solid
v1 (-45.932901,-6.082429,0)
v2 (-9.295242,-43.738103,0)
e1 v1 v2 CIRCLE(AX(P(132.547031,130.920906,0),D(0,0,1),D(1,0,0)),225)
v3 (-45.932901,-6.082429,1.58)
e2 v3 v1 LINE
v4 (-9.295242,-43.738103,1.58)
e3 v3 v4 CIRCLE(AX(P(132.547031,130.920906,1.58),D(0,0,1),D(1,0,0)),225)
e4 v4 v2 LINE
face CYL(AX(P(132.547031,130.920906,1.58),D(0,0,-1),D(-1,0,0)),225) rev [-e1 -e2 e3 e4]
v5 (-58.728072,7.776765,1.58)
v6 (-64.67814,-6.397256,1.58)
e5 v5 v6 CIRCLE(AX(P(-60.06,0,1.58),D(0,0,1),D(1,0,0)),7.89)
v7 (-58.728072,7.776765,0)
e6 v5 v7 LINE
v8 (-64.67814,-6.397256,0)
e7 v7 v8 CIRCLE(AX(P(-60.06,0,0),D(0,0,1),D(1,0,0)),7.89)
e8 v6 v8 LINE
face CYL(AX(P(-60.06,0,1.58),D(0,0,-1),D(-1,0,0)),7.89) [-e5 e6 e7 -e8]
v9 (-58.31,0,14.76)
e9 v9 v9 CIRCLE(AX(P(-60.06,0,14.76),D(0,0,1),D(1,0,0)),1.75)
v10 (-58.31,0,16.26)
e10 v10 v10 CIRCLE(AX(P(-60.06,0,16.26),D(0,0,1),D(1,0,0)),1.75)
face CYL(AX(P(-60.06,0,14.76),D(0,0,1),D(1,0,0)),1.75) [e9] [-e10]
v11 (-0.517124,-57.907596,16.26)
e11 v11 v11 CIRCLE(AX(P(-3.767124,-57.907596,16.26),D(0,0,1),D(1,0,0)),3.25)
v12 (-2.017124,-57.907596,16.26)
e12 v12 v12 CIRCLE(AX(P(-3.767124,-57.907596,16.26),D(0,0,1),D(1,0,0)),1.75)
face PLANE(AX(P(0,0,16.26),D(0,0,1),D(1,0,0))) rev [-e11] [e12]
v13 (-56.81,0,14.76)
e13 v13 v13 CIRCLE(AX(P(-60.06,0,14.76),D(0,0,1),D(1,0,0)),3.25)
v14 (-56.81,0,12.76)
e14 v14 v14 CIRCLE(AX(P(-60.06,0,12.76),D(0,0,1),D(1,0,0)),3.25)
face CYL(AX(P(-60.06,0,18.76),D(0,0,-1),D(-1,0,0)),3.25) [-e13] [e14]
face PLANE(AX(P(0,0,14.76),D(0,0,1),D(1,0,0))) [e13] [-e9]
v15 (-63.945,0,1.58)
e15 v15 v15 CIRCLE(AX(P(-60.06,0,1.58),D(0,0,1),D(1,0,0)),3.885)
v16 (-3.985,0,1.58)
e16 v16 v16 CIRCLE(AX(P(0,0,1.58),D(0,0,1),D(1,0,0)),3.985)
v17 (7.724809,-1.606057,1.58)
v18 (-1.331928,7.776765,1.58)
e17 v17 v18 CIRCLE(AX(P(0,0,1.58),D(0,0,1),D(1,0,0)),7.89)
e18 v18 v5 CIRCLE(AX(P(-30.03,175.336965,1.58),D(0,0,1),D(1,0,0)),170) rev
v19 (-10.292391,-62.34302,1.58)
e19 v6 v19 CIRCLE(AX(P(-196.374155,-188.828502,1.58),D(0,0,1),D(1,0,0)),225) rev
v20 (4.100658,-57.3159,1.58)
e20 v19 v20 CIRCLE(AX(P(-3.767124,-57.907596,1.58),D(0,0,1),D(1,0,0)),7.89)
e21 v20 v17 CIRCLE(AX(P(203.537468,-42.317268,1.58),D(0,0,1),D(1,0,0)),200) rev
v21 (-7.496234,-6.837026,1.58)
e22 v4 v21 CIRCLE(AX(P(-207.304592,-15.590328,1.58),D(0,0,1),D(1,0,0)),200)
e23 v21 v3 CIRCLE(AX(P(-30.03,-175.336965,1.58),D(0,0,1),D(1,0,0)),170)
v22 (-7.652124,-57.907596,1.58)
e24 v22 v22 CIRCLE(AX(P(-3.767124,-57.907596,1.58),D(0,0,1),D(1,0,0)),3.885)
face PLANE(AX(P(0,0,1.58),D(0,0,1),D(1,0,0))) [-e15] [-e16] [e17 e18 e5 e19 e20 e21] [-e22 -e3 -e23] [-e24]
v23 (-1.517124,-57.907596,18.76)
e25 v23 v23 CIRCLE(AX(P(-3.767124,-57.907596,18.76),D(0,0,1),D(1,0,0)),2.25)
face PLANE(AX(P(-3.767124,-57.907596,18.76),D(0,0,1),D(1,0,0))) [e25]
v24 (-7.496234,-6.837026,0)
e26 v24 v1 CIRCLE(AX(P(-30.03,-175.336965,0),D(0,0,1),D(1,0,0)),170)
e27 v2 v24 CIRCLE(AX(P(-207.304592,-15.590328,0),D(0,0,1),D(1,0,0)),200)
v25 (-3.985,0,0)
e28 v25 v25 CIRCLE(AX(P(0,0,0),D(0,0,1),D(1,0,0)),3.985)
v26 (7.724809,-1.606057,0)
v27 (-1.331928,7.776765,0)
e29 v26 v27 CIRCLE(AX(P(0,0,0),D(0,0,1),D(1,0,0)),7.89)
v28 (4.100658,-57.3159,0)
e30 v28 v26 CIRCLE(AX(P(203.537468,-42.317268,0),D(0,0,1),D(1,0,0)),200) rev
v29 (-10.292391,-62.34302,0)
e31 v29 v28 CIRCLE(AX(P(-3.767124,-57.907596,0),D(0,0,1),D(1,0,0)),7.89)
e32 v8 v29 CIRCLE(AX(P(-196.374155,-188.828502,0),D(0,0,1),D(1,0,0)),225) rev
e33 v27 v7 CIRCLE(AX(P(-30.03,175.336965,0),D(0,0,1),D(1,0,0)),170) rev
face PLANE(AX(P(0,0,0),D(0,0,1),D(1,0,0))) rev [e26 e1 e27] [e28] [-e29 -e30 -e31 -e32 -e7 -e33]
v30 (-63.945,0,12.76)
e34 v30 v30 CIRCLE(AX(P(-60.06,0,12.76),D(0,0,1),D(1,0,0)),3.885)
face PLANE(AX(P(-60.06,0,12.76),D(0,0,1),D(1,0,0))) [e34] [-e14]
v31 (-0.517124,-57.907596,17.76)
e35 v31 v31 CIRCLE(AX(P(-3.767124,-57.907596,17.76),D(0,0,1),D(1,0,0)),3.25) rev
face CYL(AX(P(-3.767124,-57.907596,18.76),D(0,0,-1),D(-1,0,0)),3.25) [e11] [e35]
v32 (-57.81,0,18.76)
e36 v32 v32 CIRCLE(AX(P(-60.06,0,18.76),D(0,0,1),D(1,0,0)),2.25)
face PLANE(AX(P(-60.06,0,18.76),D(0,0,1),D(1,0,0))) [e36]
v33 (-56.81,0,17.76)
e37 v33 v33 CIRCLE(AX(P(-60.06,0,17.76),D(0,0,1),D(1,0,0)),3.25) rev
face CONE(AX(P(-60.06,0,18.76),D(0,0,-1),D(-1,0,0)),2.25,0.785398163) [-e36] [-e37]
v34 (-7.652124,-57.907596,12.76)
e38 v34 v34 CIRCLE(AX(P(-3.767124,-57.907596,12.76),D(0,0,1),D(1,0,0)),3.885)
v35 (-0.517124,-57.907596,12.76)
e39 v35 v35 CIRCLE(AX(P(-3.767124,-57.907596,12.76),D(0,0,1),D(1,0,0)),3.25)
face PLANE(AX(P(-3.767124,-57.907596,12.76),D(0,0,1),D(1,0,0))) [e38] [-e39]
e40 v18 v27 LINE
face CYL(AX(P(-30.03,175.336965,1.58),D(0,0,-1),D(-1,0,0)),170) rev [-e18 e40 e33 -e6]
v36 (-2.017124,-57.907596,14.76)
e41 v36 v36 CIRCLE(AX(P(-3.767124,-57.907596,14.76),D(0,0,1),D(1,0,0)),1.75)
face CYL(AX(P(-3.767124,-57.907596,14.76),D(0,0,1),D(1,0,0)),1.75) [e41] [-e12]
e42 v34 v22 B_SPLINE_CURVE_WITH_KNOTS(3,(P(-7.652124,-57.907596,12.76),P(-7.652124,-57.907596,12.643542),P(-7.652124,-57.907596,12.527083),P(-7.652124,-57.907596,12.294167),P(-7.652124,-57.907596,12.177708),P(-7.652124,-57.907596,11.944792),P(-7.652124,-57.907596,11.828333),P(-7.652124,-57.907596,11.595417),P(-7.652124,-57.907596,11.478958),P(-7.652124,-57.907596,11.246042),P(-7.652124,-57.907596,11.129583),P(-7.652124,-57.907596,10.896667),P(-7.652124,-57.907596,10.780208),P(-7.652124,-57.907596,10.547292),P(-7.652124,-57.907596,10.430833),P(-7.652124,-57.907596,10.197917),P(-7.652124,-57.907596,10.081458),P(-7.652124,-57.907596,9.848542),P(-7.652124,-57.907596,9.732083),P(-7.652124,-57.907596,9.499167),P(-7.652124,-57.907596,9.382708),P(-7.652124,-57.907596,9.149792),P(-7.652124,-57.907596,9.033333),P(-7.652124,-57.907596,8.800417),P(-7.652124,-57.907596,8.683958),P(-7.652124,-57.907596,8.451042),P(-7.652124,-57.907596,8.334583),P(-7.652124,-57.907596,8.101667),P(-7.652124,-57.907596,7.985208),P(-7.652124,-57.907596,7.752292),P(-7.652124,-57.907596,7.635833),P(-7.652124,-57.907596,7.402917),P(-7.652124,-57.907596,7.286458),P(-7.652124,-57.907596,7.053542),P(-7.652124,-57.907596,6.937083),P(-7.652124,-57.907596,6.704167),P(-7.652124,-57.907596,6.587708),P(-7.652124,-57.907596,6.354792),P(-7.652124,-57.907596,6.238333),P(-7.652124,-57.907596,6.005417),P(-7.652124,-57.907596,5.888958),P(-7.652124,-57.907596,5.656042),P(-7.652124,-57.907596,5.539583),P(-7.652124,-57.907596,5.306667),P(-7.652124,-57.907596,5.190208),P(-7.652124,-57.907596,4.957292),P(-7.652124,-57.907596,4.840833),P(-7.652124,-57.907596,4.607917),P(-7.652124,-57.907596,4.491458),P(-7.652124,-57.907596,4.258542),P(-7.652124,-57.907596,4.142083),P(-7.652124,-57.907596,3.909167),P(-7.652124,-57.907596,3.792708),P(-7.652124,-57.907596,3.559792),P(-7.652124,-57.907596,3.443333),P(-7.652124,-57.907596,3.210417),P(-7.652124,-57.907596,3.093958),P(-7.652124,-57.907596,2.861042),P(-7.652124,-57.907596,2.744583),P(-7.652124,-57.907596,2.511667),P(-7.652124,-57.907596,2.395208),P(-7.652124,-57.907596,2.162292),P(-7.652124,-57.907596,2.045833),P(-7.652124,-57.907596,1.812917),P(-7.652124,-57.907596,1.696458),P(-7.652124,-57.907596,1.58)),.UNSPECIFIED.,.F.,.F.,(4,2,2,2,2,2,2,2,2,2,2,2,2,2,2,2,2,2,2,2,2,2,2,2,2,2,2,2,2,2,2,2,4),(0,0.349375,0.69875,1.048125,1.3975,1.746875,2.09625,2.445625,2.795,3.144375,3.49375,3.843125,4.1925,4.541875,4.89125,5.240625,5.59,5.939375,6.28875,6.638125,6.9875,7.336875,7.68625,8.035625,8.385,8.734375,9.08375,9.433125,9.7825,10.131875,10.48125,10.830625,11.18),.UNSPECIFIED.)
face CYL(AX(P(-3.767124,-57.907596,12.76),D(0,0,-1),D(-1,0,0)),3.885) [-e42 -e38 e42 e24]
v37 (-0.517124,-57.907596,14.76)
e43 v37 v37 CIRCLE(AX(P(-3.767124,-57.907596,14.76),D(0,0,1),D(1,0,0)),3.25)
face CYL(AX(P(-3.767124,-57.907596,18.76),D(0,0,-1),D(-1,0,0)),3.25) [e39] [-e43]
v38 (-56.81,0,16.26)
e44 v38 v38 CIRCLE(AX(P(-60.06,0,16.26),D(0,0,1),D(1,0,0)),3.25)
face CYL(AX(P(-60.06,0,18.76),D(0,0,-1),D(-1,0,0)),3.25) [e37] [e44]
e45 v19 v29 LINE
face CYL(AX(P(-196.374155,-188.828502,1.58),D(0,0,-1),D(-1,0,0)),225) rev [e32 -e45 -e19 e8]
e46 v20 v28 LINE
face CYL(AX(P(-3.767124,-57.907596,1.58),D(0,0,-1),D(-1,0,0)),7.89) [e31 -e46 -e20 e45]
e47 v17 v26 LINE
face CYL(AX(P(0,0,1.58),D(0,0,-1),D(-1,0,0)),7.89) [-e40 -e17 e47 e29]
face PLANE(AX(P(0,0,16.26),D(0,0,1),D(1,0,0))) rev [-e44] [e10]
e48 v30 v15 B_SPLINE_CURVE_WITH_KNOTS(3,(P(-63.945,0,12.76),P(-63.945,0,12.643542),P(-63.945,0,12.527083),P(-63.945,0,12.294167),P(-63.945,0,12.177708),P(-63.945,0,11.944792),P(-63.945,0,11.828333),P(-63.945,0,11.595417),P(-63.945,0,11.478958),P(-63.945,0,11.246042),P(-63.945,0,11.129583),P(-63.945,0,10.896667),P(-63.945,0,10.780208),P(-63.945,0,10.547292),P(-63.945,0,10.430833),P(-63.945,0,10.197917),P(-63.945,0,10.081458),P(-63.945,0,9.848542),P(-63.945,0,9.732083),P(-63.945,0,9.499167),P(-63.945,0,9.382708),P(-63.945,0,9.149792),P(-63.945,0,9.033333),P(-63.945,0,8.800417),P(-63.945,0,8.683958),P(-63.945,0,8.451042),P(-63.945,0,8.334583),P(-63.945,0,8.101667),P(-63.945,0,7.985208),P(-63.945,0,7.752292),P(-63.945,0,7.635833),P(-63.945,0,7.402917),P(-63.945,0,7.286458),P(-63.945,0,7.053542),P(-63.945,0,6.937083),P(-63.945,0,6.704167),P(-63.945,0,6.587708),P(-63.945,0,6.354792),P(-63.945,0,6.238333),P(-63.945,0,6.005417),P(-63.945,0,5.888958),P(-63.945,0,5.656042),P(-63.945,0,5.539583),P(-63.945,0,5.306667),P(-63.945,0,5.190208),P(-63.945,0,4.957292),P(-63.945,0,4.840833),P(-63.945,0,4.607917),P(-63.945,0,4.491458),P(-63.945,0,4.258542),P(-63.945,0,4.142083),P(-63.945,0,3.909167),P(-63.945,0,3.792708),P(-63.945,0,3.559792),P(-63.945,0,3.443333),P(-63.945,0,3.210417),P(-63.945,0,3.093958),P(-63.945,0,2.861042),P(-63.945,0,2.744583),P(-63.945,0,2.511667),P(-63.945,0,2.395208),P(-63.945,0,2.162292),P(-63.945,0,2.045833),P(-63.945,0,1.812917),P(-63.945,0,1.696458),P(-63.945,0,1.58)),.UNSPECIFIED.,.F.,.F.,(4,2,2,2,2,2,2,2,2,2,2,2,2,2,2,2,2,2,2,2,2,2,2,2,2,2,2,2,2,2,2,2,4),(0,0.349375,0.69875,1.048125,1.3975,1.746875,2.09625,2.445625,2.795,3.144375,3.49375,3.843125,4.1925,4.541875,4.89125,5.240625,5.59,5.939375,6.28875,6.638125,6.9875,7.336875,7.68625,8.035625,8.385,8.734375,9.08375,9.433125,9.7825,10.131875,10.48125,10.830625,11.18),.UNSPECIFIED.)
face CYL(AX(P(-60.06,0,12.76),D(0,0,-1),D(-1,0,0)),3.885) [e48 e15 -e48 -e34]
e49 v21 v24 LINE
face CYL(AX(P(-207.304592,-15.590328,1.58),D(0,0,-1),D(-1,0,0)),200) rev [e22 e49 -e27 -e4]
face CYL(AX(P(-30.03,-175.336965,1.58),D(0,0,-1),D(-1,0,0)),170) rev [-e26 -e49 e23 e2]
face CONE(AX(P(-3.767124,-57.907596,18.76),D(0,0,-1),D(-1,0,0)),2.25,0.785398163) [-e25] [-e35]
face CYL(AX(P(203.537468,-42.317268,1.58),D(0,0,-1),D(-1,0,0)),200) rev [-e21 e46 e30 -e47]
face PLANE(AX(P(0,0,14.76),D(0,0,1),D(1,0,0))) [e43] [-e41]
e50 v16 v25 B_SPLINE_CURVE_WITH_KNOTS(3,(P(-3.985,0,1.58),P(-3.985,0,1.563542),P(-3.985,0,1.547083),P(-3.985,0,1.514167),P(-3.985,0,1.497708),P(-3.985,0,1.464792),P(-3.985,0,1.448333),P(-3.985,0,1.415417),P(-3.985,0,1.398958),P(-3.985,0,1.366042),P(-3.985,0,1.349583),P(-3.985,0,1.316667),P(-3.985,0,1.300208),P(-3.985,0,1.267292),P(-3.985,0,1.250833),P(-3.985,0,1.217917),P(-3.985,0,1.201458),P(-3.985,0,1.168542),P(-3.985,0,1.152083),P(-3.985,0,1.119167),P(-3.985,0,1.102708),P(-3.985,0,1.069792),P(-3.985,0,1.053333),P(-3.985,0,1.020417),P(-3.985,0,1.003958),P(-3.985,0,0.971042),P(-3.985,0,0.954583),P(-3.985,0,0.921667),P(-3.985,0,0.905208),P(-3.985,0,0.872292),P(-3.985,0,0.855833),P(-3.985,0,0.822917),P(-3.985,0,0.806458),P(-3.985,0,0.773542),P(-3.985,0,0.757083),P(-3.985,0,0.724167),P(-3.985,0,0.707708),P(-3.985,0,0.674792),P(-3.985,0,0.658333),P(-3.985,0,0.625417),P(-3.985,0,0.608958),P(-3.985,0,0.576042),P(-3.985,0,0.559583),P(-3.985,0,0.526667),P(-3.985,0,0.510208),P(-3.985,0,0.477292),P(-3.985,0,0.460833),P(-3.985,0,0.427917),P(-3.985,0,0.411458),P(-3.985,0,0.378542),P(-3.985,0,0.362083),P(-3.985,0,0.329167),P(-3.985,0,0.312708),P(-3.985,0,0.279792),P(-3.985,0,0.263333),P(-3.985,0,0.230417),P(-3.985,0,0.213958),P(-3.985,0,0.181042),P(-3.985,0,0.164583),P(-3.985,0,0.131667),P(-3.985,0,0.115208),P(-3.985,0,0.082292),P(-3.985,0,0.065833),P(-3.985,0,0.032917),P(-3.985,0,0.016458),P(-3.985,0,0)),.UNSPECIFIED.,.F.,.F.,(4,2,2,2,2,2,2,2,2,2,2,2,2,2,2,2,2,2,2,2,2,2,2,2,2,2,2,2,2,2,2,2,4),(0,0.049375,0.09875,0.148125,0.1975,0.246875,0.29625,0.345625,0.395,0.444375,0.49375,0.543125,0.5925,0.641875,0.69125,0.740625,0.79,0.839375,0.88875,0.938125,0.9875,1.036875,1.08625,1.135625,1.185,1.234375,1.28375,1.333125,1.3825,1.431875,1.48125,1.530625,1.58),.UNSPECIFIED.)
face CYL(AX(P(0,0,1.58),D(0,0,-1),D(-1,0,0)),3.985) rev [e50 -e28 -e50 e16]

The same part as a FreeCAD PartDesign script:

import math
import FreeCAD as App
import Part
import Sketcher
from FreeCAD import Vector


def edges_at(feature, points):
    """Names of the edges that pass closest to the given points."""
    edges = feature.Shape.Edges
    near = lambda p: min(range(len(edges)), key=lambda i: edges[i].distToShape(Part.Vertex(*p))[0])
    return sorted({f"Edge{near(p) + 1}" for p in points})

doc = App.newDocument("Part")
body = doc.addObject("PartDesign::Body", "Body")

# Sketch on XY plane
sketch1 = body.newObject("Sketcher::SketchObject", "Sketch")
sketch1.AttachmentSupport = (doc.getObject("XY_Plane"), [""])
sketch1.MapMode = "FlatFace"
sketch1.addGeometry(Part.ArcOfCircle(Part.Circle(Vector(-3.8, -57.9, 0), Vector(0, 0, 1), 7.9), math.radians(-146), math.radians(4)), False)
sketch1.addGeometry(Part.ArcOfCircle(Part.Circle(Vector(203.5, -42.3, 0), Vector(0, 0, 1), 200), math.radians(168.26), math.radians(184.3)), False)
sketch1.addGeometry(Part.ArcOfCircle(Part.Circle(Vector(0, 0, 0), Vector(0, 0, 1), 7.9), math.radians(-12), math.radians(100)), False)
sketch1.addGeometry(Part.ArcOfCircle(Part.Circle(Vector(-30, 175.3, 0), Vector(0, 0, 1), 170), math.radians(-99.72), math.radians(-80.28)), False)
sketch1.addGeometry(Part.ArcOfCircle(Part.Circle(Vector(-60.1, 0, 0), Vector(0, 0, 1), 7.9), math.radians(80), math.radians(234)), False)
sketch1.addGeometry(Part.ArcOfCircle(Part.Circle(Vector(-196.4, -188.8, 0), Vector(0, 0, 1), 225), math.radians(34.21), math.radians(54.17)), False)
sketch1.addGeometry(Part.ArcOfCircle(Part.Circle(Vector(132.5, 130.9, 0), Vector(0, 0, 1), 225), math.radians(-142.49), math.radians(-129.08)), False)
sketch1.addGeometry(Part.ArcOfCircle(Part.Circle(Vector(-30, -175.3, 0), Vector(0, 0, 1), 170), math.radians(82.38), math.radians(95.37)), False)
sketch1.addGeometry(Part.ArcOfCircle(Part.Circle(Vector(-207.3, -15.6, 0), Vector(0, 0, 1), 200), math.radians(-8.09), math.radians(2.51)), False)
sketch1.addGeometry(Part.Circle(Vector(0, 0, 0), Vector(0, 0, 1), 4), False)
sketch1.addConstraint(Sketcher.Constraint("Tangent", 0, 2, 1, 2))
sketch1.addConstraint(Sketcher.Constraint("Tangent", 1, 1, 2, 1))
sketch1.addConstraint(Sketcher.Constraint("Tangent", 2, 2, 3, 2))
sketch1.addConstraint(Sketcher.Constraint("Tangent", 3, 1, 4, 1))
sketch1.addConstraint(Sketcher.Constraint("Tangent", 4, 2, 5, 2))
sketch1.addConstraint(Sketcher.Constraint("Tangent", 5, 1, 0, 1))
sketch1.addConstraint(Sketcher.Constraint("Coincident", 6, 1, 7, 2))
sketch1.addConstraint(Sketcher.Constraint("Coincident", 7, 1, 8, 2))
sketch1.addConstraint(Sketcher.Constraint("Coincident", 8, 1, 6, 2))
sketch1.addConstraint(Sketcher.Constraint("Coincident", 2, 3, -1, 1))
sketch1.addConstraint(Sketcher.Constraint("Coincident", 9, 3, -1, 1))
sketch1.addConstraint(Sketcher.Constraint("Equal", 0, 2))
sketch1.addConstraint(Sketcher.Constraint("Equal", 2, 4))
sketch1.addConstraint(Sketcher.Constraint("Equal", 5, 6))
sketch1.addConstraint(Sketcher.Constraint("Equal", 3, 7))
sketch1.addConstraint(Sketcher.Constraint("Equal", 1, 8))
sketch1.addConstraint(Sketcher.Constraint("Symmetric", 3, 3, 7, 3, -1))
sketch1.addConstraint(Sketcher.Constraint("PointOnObject", 4, 3, -1))
sketch1.addConstraint(Sketcher.Constraint("Radius", 1, 200.0))
sketch1.addConstraint(Sketcher.Constraint("Radius", 3, 170.0))
sketch1.addConstraint(Sketcher.Constraint("Radius", 5, 225.0))
sketch1.addConstraint(Sketcher.Constraint("Diameter", 9, 7.97))
sketch1.addConstraint(Sketcher.Constraint("Radius", 0, 7.89))
sketch1.addConstraint(Sketcher.Constraint("DistanceX", 3, 3, -1, 1, 30.03))
sketch1.addConstraint(Sketcher.Constraint("DistanceY", 0, 2, -1, 1, 57.3159))
sketch1.addConstraint(Sketcher.Constraint("DistanceX", 6, 1, -1, 1, 45.932901))
sketch1.addConstraint(Sketcher.Constraint("DistanceX", 8, 1, 0, 2, 13.3959))
sketch1.addConstraint(Sketcher.Constraint("DistanceX", -1, 1, 1, 3, 203.537468))
sketch1.addConstraint(Sketcher.Constraint("DistanceX", -1, 1, 6, 3, 132.547031))
sketch1.addConstraint(Sketcher.Constraint("DistanceX", 8, 3, -1, 1, 207.304592))
pad1 = body.newObject("PartDesign::Pad", "Pad")
pad1.Profile = sketch1
pad1.Length = 1.58

# Sketch on XY plane
sketch2 = body.newObject("Sketcher::SketchObject", "Sketch001")
sketch2.AttachmentSupport = (doc.getObject("XY_Plane"), [""])
sketch2.MapMode = "FlatFace"
sketch2.AttachmentOffset = App.Placement(Vector(0, 0, 1.58), App.Rotation())
sketch2.addGeometry(Part.Circle(Vector(-60.1, 0, 0), Vector(0, 0, 1), 3.9), False)
sketch2.addGeometry(Part.Circle(Vector(-3.8, -57.9, 0), Vector(0, 0, 1), 3.9), False)
sketch2.addConstraint(Sketcher.Constraint("Equal", 0, 1))
sketch2.addConstraint(Sketcher.Constraint("PointOnObject", 0, 3, -1))
sketch2.addConstraint(Sketcher.Constraint("Diameter", 0, 7.77))
sketch2.addConstraint(Sketcher.Constraint("DistanceX", 0, 3, -1, 1, 60.06))
sketch2.addConstraint(Sketcher.Constraint("DistanceX", 1, 3, -1, 1, 3.767124))
sketch2.addConstraint(Sketcher.Constraint("DistanceY", 1, 3, -1, 1, 57.907596))
pad2 = body.newObject("PartDesign::Pad", "Pad001")
pad2.Profile = sketch2
pad2.Length = 11.18

# Sketch on XY plane
sketch3 = body.newObject("Sketcher::SketchObject", "Sketch002")
sketch3.AttachmentSupport = (doc.getObject("XY_Plane"), [""])
sketch3.MapMode = "FlatFace"
sketch3.AttachmentOffset = App.Placement(Vector(0, 0, 12.76), App.Rotation())
sketch3.addGeometry(Part.Circle(Vector(-3.8, -57.9, 0), Vector(0, 0, 1), 3.2), False)
sketch3.addGeometry(Part.Circle(Vector(-60.1, 0, 0), Vector(0, 0, 1), 3.2), False)
sketch3.addConstraint(Sketcher.Constraint("Equal", 0, 1))
sketch3.addConstraint(Sketcher.Constraint("PointOnObject", 1, 3, -1))
sketch3.addConstraint(Sketcher.Constraint("Diameter", 0, 6.5))
sketch3.addConstraint(Sketcher.Constraint("DistanceX", 1, 3, -1, 1, 60.06))
sketch3.addConstraint(Sketcher.Constraint("DistanceX", 0, 3, -1, 1, 3.767124))
sketch3.addConstraint(Sketcher.Constraint("DistanceY", 0, 3, -1, 1, 57.907596))
pad3 = body.newObject("PartDesign::Pad", "Pad002")
pad3.Profile = sketch3
pad3.Length = 6

# Sketch on XY plane
sketch4 = body.newObject("Sketcher::SketchObject", "Sketch003")
sketch4.AttachmentSupport = (doc.getObject("XY_Plane"), [""])
sketch4.MapMode = "FlatFace"
sketch4.AttachmentOffset = App.Placement(Vector(0, 0, 14.76), App.Rotation())
sketch4.addGeometry(Part.Circle(Vector(-60.1, 0, 0), Vector(0, 0, 1), 3.2), False)
sketch4.addGeometry(Part.Circle(Vector(-60.1, 0, 0), Vector(0, 0, 1), 1.8), False)
sketch4.addGeometry(Part.Circle(Vector(-3.8, -57.9, 0), Vector(0, 0, 1), 3.2), False)
sketch4.addGeometry(Part.Circle(Vector(-3.8, -57.9, 0), Vector(0, 0, 1), 1.8), False)
sketch4.addConstraint(Sketcher.Constraint("Coincident", 1, 3, 0, 3))
sketch4.addConstraint(Sketcher.Constraint("Coincident", 3, 3, 2, 3))
sketch4.addConstraint(Sketcher.Constraint("Equal", 0, 2))
sketch4.addConstraint(Sketcher.Constraint("Equal", 1, 3))
sketch4.addConstraint(Sketcher.Constraint("PointOnObject", 0, 3, -1))
sketch4.addConstraint(Sketcher.Constraint("Diameter", 0, 6.5))
sketch4.addConstraint(Sketcher.Constraint("Diameter", 1, 3.5))
sketch4.addConstraint(Sketcher.Constraint("DistanceX", 0, 3, -1, 1, 60.06))
sketch4.addConstraint(Sketcher.Constraint("DistanceX", 2, 3, -1, 1, 3.767124))
sketch4.addConstraint(Sketcher.Constraint("DistanceY", 2, 3, -1, 1, 57.907596))
pocket1 = body.newObject("PartDesign::Pocket", "Pocket")
pocket1.Profile = sketch4
pocket1.Length = 1.5
pocket1.Reversed = True
doc.recompute()

chamfer = body.newObject("PartDesign::Chamfer", "Chamfer")
chamfer.Base = (pocket1, edges_at(pocket1, [(-7.017, -57.908, 18.76), (-63.31, 0, 18.76)]))
chamfer.Size = 1

doc.recompute()
